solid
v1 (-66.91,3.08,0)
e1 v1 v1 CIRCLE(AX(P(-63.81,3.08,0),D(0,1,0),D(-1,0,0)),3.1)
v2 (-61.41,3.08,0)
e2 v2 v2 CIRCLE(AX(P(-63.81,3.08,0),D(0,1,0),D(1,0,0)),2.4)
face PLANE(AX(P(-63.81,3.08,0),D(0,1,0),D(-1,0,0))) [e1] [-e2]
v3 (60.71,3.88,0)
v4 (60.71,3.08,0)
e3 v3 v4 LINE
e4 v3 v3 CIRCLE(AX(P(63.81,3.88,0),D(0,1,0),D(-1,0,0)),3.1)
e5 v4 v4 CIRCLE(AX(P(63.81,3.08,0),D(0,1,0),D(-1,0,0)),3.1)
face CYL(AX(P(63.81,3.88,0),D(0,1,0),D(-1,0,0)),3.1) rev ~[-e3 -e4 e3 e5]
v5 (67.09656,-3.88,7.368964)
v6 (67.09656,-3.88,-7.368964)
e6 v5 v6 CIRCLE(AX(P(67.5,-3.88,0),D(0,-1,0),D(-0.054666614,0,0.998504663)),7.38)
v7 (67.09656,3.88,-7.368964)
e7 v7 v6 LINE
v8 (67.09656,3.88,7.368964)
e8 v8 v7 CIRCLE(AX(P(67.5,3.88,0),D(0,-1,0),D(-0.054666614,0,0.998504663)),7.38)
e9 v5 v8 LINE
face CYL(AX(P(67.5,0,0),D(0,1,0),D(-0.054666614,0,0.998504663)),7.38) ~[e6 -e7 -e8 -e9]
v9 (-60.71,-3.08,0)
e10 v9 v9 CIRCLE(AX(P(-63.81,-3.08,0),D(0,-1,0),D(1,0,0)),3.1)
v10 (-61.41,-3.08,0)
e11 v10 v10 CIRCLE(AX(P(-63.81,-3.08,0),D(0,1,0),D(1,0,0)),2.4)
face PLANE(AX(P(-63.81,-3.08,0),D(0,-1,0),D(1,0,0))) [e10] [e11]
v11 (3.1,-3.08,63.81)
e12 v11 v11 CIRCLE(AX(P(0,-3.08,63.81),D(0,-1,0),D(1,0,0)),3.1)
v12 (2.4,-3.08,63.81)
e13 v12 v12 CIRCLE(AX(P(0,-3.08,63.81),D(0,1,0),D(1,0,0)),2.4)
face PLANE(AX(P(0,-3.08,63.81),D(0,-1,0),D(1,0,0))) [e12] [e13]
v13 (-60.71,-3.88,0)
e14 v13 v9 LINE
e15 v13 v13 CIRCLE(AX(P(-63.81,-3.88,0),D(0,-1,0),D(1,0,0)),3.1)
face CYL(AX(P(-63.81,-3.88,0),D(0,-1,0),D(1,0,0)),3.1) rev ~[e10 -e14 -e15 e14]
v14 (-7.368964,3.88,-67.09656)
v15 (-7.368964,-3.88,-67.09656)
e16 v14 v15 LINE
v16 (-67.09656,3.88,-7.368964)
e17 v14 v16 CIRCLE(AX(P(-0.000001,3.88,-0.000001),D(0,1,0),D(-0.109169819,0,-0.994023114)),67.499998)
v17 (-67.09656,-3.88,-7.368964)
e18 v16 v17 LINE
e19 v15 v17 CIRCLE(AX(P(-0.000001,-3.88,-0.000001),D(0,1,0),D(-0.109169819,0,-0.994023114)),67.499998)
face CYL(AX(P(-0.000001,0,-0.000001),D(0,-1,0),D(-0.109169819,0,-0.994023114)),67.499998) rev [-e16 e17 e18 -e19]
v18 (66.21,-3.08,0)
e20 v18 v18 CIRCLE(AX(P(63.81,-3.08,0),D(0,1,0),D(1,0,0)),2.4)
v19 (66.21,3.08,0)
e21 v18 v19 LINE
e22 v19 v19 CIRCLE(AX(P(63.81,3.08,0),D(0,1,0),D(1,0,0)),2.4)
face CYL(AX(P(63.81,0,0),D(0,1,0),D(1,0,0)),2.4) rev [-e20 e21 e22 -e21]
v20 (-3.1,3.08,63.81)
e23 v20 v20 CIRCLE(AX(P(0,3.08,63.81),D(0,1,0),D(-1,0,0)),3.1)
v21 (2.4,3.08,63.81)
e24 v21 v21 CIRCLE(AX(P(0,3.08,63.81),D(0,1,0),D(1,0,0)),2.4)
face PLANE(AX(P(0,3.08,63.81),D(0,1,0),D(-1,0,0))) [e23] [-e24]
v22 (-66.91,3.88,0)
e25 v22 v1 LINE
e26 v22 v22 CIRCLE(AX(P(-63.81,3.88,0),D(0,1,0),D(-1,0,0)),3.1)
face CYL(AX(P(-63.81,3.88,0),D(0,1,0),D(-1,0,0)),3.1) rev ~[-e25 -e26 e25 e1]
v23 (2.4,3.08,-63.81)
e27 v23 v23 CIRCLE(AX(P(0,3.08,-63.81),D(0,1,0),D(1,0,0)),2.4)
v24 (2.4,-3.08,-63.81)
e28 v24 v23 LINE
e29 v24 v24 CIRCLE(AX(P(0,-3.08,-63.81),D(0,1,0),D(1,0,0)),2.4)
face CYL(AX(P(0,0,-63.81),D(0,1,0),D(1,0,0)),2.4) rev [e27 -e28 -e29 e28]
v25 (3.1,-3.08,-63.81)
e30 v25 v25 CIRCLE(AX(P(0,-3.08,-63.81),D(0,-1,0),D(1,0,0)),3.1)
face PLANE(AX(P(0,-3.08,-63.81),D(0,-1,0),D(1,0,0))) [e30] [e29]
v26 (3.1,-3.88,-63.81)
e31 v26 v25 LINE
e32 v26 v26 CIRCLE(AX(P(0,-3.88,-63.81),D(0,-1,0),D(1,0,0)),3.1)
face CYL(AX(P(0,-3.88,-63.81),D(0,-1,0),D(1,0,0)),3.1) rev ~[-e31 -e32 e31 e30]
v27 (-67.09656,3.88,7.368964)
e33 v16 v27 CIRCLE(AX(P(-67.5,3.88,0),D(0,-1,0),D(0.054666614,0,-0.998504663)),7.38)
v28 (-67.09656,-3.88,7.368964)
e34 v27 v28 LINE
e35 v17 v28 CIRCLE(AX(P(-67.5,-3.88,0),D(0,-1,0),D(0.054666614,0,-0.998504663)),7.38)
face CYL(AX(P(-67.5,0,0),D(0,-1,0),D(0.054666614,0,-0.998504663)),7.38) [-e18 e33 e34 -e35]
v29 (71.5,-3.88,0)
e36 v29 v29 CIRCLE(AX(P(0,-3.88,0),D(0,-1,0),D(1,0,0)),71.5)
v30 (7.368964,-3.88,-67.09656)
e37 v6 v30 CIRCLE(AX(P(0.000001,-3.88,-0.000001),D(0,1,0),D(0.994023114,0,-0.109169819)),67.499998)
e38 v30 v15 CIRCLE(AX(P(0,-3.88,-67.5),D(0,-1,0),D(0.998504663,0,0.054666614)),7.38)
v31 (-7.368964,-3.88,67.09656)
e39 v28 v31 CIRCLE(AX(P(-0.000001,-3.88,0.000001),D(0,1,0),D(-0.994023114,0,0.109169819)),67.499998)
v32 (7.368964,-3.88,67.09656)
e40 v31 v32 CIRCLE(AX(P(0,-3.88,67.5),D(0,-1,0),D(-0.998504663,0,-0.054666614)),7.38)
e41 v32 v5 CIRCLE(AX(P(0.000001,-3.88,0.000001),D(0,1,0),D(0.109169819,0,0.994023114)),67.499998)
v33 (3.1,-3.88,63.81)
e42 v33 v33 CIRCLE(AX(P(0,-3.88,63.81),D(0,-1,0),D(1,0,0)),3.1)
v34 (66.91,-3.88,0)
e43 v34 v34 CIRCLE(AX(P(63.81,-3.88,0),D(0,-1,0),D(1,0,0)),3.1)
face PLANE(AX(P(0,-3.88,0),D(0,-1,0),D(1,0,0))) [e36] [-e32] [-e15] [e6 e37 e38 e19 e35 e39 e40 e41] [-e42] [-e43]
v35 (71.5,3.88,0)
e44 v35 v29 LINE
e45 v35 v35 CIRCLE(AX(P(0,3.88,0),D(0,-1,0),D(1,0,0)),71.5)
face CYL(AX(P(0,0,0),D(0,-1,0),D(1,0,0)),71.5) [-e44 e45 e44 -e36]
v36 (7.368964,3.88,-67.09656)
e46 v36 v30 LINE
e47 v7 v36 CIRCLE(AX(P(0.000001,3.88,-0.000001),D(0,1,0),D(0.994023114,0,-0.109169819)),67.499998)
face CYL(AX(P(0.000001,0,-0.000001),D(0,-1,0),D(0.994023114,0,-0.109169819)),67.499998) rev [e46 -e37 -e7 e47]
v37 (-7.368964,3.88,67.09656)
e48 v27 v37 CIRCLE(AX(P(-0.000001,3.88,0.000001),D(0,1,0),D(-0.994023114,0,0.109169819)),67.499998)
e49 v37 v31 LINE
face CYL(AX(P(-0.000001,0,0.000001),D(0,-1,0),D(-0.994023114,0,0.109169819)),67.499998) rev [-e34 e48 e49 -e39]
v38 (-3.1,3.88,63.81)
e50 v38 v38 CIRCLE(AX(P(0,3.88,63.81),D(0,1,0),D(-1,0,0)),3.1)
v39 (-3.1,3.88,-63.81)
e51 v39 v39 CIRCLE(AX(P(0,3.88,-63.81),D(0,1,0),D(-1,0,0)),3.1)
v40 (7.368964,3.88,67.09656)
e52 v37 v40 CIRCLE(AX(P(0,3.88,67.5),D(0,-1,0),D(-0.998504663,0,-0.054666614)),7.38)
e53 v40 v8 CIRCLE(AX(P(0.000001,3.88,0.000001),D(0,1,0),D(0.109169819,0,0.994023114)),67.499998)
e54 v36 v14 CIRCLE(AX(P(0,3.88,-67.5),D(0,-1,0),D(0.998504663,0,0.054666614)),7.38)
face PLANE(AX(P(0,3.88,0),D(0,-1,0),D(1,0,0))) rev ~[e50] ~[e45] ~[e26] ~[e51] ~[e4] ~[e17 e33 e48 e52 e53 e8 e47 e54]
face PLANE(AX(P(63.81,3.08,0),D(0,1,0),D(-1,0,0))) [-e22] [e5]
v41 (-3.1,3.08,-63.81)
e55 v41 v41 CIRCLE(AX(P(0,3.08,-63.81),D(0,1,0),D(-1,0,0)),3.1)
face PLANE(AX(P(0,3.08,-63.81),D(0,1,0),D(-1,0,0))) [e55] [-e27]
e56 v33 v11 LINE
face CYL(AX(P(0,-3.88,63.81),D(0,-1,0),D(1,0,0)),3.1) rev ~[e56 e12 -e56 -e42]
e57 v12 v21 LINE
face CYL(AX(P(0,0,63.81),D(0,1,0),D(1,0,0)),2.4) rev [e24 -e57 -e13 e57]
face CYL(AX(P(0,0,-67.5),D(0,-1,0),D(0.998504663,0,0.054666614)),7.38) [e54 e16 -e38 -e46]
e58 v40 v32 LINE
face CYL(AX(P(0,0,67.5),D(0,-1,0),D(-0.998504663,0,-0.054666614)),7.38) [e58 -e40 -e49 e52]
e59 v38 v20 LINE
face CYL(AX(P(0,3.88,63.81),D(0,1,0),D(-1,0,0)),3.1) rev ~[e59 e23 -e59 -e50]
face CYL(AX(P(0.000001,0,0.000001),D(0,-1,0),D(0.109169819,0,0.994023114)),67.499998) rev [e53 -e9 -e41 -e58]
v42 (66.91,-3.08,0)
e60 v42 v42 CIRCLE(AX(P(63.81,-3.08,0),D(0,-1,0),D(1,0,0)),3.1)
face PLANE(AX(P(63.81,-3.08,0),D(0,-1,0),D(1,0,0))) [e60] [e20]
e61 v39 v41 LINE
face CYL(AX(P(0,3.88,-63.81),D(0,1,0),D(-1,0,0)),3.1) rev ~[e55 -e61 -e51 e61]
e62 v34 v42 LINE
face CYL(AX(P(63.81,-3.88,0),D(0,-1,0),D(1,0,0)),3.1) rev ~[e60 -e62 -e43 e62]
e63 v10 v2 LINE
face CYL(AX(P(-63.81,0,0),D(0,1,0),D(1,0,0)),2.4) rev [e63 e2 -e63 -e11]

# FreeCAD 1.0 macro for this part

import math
import FreeCAD as App
import Part
import Sketcher
Q = App.Units.Quantity

doc = App.newDocument("Part")
body = doc.addObject("PartDesign::Body", "Body")

# Sketch on XZ plane
sketch1 = doc.addObject("Sketcher::SketchObject", "Sketch")
body.addObject(sketch1)
sketch1.AttachmentSupport = (doc.XZ_Plane, [""])
sketch1.MapMode = "FlatFace"
sketch1.addGeometry([
    Part.Circle(App.Vector(0, 0, 0), App.Vector(0, 0, 1), 71.5),  # 0
    Part.Circle(App.Vector(0, -63.8, 0), App.Vector(0, 0, 1), 2.4),  # 1
    Part.Circle(App.Vector(-63.8, 0, 0), App.Vector(0, 0, 1), 2.4),  # 2
    Part.ArcOfCircle(Part.Circle(App.Vector(-67.5, 0, 0), App.Vector(0, 0, 1), 7.4), math.radians(-87), math.radians(87)),  # 3
    Part.ArcOfCircle(Part.Circle(App.Vector(0, 0, 0), App.Vector(0, 0, 1), 67.5), math.radians(96), math.radians(174)),  # 4
    Part.ArcOfCircle(Part.Circle(App.Vector(0, 67.5, 0), App.Vector(0, 0, 1), 7.4), math.radians(-177), math.radians(-3)),  # 5
    Part.ArcOfCircle(Part.Circle(App.Vector(0, 0, 0), App.Vector(0, 0, 1), 67.5), math.radians(6), math.radians(84)),  # 6
    Part.ArcOfCircle(Part.Circle(App.Vector(67.5, 0, 0), App.Vector(0, 0, 1), 7.4), math.radians(93), math.radians(267)),  # 7
    Part.ArcOfCircle(Part.Circle(App.Vector(0, 0, 0), App.Vector(0, 0, 1), 67.5), math.radians(-84), math.radians(-6)),  # 8
    Part.ArcOfCircle(Part.Circle(App.Vector(0, -67.5, 0), App.Vector(0, 0, 1), 7.4), math.radians(3), math.radians(177)),  # 9
    Part.ArcOfCircle(Part.Circle(App.Vector(0, 0, 0), App.Vector(0, 0, 1), 67.5), math.radians(-174), math.radians(-96)),  # 10
    Part.Circle(App.Vector(63.8, 0, 0), App.Vector(0, 0, 1), 2.4),  # 11
    Part.Circle(App.Vector(0, 63.8, 0), App.Vector(0, 0, 1), 2.4),  # 12
], False)
sketch1.addConstraint([
    Sketcher.Constraint("Coincident", 3, 2, 4, 2),
    Sketcher.Constraint("Coincident", 4, 1, 5, 1),
    Sketcher.Constraint("Coincident", 5, 2, 6, 2),
    Sketcher.Constraint("Coincident", 6, 1, 7, 1),
    Sketcher.Constraint("Coincident", 7, 2, 8, 2),
    Sketcher.Constraint("Coincident", 8, 1, 9, 1),
    Sketcher.Constraint("Coincident", 9, 2, 10, 2),
    Sketcher.Constraint("Coincident", 10, 1, 3, 1),
    Sketcher.Constraint("Coincident", 0, 3, -1, 1),
    Sketcher.Constraint("Coincident", 4, 3, -1, 1),
    Sketcher.Constraint("Coincident", 6, 3, -1, 1),
    Sketcher.Constraint("Coincident", 8, 3, -1, 1),
    Sketcher.Constraint("Coincident", 10, 3, -1, 1),
    Sketcher.Constraint("Equal", 1, 2),
    Sketcher.Constraint("Equal", 3, 5),
    Sketcher.Constraint("Equal", 4, 6),
    Sketcher.Constraint("Equal", 5, 7),
    Sketcher.Constraint("Equal", 6, 8),
    Sketcher.Constraint("Equal", 7, 9),
    Sketcher.Constraint("Equal", 8, 10),
    Sketcher.Constraint("Equal", 2, 11),
    Sketcher.Constraint("Equal", 11, 12),
    Sketcher.Constraint("Symmetric", 3, 3, 7, 3, -1, 1),
    Sketcher.Constraint("Symmetric", 5, 3, 9, 3, -1, 1),
    Sketcher.Constraint("Symmetric", 2, 3, 11, 3, -1, 1),
    Sketcher.Constraint("Symmetric", 1, 3, 12, 3, -1, 1),
    Sketcher.Constraint("PointOnObject", 1, 3, -2),
    Sketcher.Constraint("PointOnObject", 2, 3, -1),
    Sketcher.Constraint("PointOnObject", 3, 3, -1),
    Sketcher.Constraint("PointOnObject", 5, 3, -2),
    Sketcher.Constraint("Diameter", 0, Q("143 mm")),
    Sketcher.Constraint("Diameter", 1, Q("4.8 mm")),
    Sketcher.Constraint("Radius", 4, Q("67.499998 mm")),
    Sketcher.Constraint("Radius", 3, Q("7.38 mm")),
    Sketcher.Constraint("DistanceX", 3, 3, -1, 1, Q("67.5 mm")),
    Sketcher.Constraint("DistanceY", -1, 1, 5, 3, Q("67.5 mm")),
    Sketcher.Constraint("DistanceY", 1, 3, -1, 1, Q("63.81 mm")),
    Sketcher.Constraint("DistanceX", 2, 3, -1, 1, Q("63.81 mm")),
])
pad1 = doc.addObject("PartDesign::Pad", "Pad")
body.addObject(pad1)
pad1.Profile = sketch1
pad1.Length = 7.76
pad1.Midplane = True

# Sketch on XZ plane
sketch2 = doc.addObject("Sketcher::SketchObject", "Sketch001")
body.addObject(sketch2)
sketch2.AttachmentSupport = (doc.XZ_Plane, [""])
sketch2.MapMode = "FlatFace"
sketch2.AttachmentOffset = App.Placement(App.Vector(0, 0, 3.88), App.Rotation())
sketch2.addGeometry([
    Part.Circle(App.Vector(0, 63.8, 0), App.Vector(0, 0, 1), 3.1),
    Part.Circle(App.Vector(63.8, 0, 0), App.Vector(0, 0, 1), 3.1),
    Part.Circle(App.Vector(0, -63.8, 0), App.Vector(0, 0, 1), 3.1),
    Part.Circle(App.Vector(-63.8, 0, 0), App.Vector(0, 0, 1), 3.1),
], False)
sketch2.addConstraint([
    Sketcher.Constraint("Equal", 0, 1),
    Sketcher.Constraint("Equal", 1, 2),
    Sketcher.Constraint("Equal", 2, 3),
    Sketcher.Constraint("Symmetric", 0, 3, 2, 3, -1, 1),
    Sketcher.Constraint("Symmetric", 1, 3, 3, 3, -1, 1),
    Sketcher.Constraint("PointOnObject", 0, 3, -2),
    Sketcher.Constraint("PointOnObject", 1, 3, -1),
    Sketcher.Constraint("Diameter", 0, Q("6.2 mm")),
    Sketcher.Constraint("DistanceY", -1, 1, 0, 3, Q("63.81 mm")),
    Sketcher.Constraint("DistanceX", -1, 1, 1, 3, Q("63.81 mm")),
])
pocket1 = doc.addObject("PartDesign::Pocket", "Pocket")
body.addObject(pocket1)
pocket1.Profile = sketch2
pocket1.Length = 0.8

# Sketch on XZ plane
sketch3 = doc.addObject("Sketcher::SketchObject", "Sketch002")
body.addObject(sketch3)
sketch3.AttachmentSupport = (doc.XZ_Plane, [""])
sketch3.MapMode = "FlatFace"
sketch3.AttachmentOffset = App.Placement(App.Vector(0, 0, -3.88), App.Rotation())
sketch3.addGeometry([
    Part.Circle(App.Vector(0, 63.8, 0), App.Vector(0, 0, 1), 3.1),
    Part.Circle(App.Vector(-63.8, 0, 0), App.Vector(0, 0, 1), 3.1),
    Part.Circle(App.Vector(0, -63.8, 0), App.Vector(0, 0, 1), 3.1),
    Part.Circle(App.Vector(63.8, 0, 0), App.Vector(0, 0, 1), 3.1),
], False)
sketch3.addConstraint([
    Sketcher.Constraint("Equal", 0, 1),
    Sketcher.Constraint("Equal", 1, 2),
    Sketcher.Constraint("Equal", 2, 3),
    Sketcher.Constraint("Symmetric", 0, 3, 2, 3, -1, 1),
    Sketcher.Constraint("Symmetric", 1, 3, 3, 3, -1, 1),
    Sketcher.Constraint("PointOnObject", 0, 3, -2),
    Sketcher.Constraint("PointOnObject", 1, 3, -1),
    Sketcher.Constraint("Diameter", 0, Q("6.2 mm")),
    Sketcher.Constraint("DistanceY", -1, 1, 0, 3, Q("63.81 mm")),
    Sketcher.Constraint("DistanceX", 1, 3, -1, 1, Q("63.81 mm")),
])
pocket2 = doc.addObject("PartDesign::Pocket", "Pocket001")
body.addObject(pocket2)
pocket2.Profile = sketch3
pocket2.Length = 0.8
pocket2.Reversed = True

doc.recompute()
